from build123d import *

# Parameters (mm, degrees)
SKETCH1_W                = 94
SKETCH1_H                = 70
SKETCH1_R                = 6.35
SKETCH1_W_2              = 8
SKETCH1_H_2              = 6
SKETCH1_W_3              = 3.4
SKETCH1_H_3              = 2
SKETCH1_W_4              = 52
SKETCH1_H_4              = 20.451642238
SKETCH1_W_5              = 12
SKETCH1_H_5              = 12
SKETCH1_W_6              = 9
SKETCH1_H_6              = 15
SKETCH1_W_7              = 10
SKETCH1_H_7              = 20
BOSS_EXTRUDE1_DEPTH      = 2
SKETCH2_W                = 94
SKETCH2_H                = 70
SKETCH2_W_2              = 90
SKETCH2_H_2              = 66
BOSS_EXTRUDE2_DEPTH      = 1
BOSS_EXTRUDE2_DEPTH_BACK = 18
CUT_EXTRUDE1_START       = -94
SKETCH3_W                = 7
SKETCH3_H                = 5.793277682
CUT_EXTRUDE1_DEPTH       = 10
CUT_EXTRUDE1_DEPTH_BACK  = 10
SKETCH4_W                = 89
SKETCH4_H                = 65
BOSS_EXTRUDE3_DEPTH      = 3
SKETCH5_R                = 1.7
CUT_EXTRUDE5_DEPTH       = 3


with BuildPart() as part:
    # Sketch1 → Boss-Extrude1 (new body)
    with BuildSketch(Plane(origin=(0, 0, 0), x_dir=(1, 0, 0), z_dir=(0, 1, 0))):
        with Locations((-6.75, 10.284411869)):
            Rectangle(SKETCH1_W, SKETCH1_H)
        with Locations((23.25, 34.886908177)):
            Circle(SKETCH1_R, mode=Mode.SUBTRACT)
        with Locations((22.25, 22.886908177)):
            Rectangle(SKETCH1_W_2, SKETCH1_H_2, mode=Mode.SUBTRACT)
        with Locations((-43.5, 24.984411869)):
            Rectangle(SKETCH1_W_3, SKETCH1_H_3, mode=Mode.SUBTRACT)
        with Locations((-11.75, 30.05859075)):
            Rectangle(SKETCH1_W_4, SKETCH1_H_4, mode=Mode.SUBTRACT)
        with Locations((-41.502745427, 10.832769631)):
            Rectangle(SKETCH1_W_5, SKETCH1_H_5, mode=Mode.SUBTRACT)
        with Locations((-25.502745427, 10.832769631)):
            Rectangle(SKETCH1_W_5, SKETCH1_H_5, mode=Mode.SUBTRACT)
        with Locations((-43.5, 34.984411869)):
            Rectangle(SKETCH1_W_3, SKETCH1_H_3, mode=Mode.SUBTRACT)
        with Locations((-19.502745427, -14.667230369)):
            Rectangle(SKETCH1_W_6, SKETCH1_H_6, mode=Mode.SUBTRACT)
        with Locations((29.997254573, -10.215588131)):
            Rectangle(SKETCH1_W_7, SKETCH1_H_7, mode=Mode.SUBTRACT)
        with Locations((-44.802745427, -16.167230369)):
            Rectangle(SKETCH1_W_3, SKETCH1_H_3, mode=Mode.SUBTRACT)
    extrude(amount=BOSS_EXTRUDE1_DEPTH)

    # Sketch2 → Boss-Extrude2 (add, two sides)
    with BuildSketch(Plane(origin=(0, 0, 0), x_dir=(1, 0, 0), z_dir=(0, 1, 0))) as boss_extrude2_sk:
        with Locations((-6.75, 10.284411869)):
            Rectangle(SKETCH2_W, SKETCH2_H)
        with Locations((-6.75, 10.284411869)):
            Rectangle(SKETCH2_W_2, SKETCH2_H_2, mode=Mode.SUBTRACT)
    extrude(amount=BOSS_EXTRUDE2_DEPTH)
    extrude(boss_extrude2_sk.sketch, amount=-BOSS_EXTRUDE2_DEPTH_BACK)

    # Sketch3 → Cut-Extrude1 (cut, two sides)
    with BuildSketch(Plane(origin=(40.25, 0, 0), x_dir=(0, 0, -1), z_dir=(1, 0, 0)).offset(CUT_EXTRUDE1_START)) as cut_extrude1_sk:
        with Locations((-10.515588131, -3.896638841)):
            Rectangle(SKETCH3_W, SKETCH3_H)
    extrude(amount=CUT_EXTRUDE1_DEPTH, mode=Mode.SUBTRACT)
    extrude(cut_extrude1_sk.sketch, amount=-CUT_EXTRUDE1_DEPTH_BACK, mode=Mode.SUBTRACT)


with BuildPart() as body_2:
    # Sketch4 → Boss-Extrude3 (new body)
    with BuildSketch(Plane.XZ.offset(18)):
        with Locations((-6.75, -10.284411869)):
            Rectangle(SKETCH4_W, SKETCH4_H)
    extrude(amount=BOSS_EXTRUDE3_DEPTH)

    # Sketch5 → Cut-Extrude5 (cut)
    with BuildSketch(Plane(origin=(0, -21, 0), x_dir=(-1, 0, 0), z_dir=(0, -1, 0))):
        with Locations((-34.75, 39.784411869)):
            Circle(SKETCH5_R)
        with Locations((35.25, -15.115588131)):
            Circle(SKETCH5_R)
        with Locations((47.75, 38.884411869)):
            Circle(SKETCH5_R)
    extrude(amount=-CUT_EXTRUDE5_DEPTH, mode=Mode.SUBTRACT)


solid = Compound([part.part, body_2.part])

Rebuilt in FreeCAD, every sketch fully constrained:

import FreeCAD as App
import Part
import Sketcher
from FreeCAD import Vector
Q = App.Units.Quantity

doc = App.newDocument("Part")
params = doc.addObject("Spreadsheet::Sheet", "Params")
for row, (alias, value) in enumerate([
    ("sketch1_diameter", "12.7 mm"),
    ("sketch1_width", "94 mm"),
    ("sketch1_width2", "9 mm"),
    ("sketch1_width3", "10 mm"),
    ("sketch1_width4", "12 mm"),
    ("pad1_length", "2 mm"),
    ("sketch2_width", "94 mm"),
    ("sketch2_width2", "90 mm"),
    ("sketch2_height", "70 mm"),
    ("sketch2_height2", "66 mm"),
    ("pad2_length", "1 mm"),
    ("pad2_length2", "18 mm"),
    ("sketch3_height", "7 mm"),
    ("pocket1_length", "10 mm"),
    ("pocket1_length2", "10 mm"),
    ("sketch4_width", "89 mm"),
    ("sketch4_height", "65 mm"),
    ("pad3_length", "3 mm"),
    ("sketch5_diameter", "3.4 mm"),
    ("pocket2_length", "3 mm"),
], start=1):
    params.set(f"A{row}", alias)
    params.set(f"B{row}", "=" + value)
    params.setAlias(f"B{row}", alias)

body = doc.addObject("PartDesign::Body", "Body")

# Sketch on XZ plane
sketch1 = body.newObject("Sketcher::SketchObject", "Sketch")
sketch1.AttachmentSupport = (doc.getObject("XZ_Plane"), [""])
sketch1.MapMode = "FlatFace"
sketch1.addGeometry([
    Part.LineSegment(Vector(-53.8, -45.3, 0), Vector(-53.8, 24.7, 0)),  # 0
    Part.LineSegment(Vector(-53.8, 24.7, 0), Vector(40.2, 24.7, 0)),  # 1
    Part.LineSegment(Vector(40.2, 24.7, 0), Vector(40.2, -45.3, 0)),  # 2
    Part.LineSegment(Vector(40.2, -45.3, 0), Vector(-53.8, -45.3, 0)),  # 3
    Part.LineSegment(Vector(-43.1, 17.2, 0), Vector(-46.5, 17.2, 0)),  # 4
    Part.LineSegment(Vector(-46.5, 17.2, 0), Vector(-46.5, 15.2, 0)),  # 5
    Part.LineSegment(Vector(-46.5, 15.2, 0), Vector(-43.1, 15.2, 0)),  # 6
    Part.LineSegment(Vector(-43.1, 15.2, 0), Vector(-43.1, 17.2, 0)),  # 7
    Part.LineSegment(Vector(-15, 22.2, 0), Vector(-24, 22.2, 0)),  # 8
    Part.LineSegment(Vector(-24, 22.2, 0), Vector(-24, 7.2, 0)),  # 9
    Part.LineSegment(Vector(-24, 7.2, 0), Vector(-15, 7.2, 0)),  # 10
    Part.LineSegment(Vector(-15, 7.2, 0), Vector(-15, 22.2, 0)),  # 11
    Part.LineSegment(Vector(35, 20.2, 0), Vector(25, 20.2, 0)),  # 12
    Part.LineSegment(Vector(25, 20.2, 0), Vector(25, 0.2, 0)),  # 13
    Part.LineSegment(Vector(25, 0.2, 0), Vector(35, 0.2, 0)),  # 14
    Part.LineSegment(Vector(35, 0.2, 0), Vector(35, 20.2, 0)),  # 15
    Part.LineSegment(Vector(-35.5, -4.8, 0), Vector(-47.5, -4.8, 0)),  # 16
    Part.LineSegment(Vector(-47.5, -4.8, 0), Vector(-47.5, -16.8, 0)),  # 17
    Part.LineSegment(Vector(-47.5, -16.8, 0), Vector(-35.5, -16.8, 0)),  # 18
    Part.LineSegment(Vector(-35.5, -16.8, 0), Vector(-35.5, -4.8, 0)),  # 19
    Part.LineSegment(Vector(-41.8, -24, 0), Vector(-45.2, -24, 0)),  # 20
    Part.LineSegment(Vector(-45.2, -24, 0), Vector(-45.2, -26, 0)),  # 21
    Part.LineSegment(Vector(-45.2, -26, 0), Vector(-41.8, -26, 0)),  # 22
    Part.LineSegment(Vector(-41.8, -26, 0), Vector(-41.8, -24, 0)),  # 23
    Part.LineSegment(Vector(-19.5, -4.8, 0), Vector(-31.5, -4.8, 0)),  # 24
    Part.LineSegment(Vector(-31.5, -4.8, 0), Vector(-31.5, -16.8, 0)),  # 25
    Part.LineSegment(Vector(-31.5, -16.8, 0), Vector(-19.5, -16.8, 0)),  # 26
    Part.LineSegment(Vector(-19.5, -16.8, 0), Vector(-19.5, -4.8, 0)),  # 27
    Part.LineSegment(Vector(-41.8, -34, 0), Vector(-45.2, -34, 0)),  # 28
    Part.LineSegment(Vector(-45.2, -34, 0), Vector(-45.2, -36, 0)),  # 29
    Part.LineSegment(Vector(-45.2, -36, 0), Vector(-41.8, -36, 0)),  # 30
    Part.LineSegment(Vector(-41.8, -36, 0), Vector(-41.8, -34, 0)),  # 31
    Part.LineSegment(Vector(14.2, -19.8, 0), Vector(-37.8, -19.8, 0)),  # 32
    Part.LineSegment(Vector(-37.8, -19.8, 0), Vector(-37.8, -40.3, 0)),  # 33
    Part.LineSegment(Vector(-37.8, -40.3, 0), Vector(14.2, -40.3, 0)),  # 34
    Part.LineSegment(Vector(14.2, -40.3, 0), Vector(14.2, -19.8, 0)),  # 35
    Part.LineSegment(Vector(26.2, -19.9, 0), Vector(18.2, -19.9, 0)),  # 36
    Part.LineSegment(Vector(18.2, -19.9, 0), Vector(18.2, -25.9, 0)),  # 37
    Part.LineSegment(Vector(18.2, -25.9, 0), Vector(26.2, -25.9, 0)),  # 38
    Part.LineSegment(Vector(26.2, -25.9, 0), Vector(26.2, -19.9, 0)),  # 39
    Part.Circle(Vector(23.2, -34.9, 0), Vector(0, 0, 1), 6.3),  # 40
], False)
sketch1.addConstraint([
    Sketcher.Constraint("Coincident", 0, 2, 1, 1),
    Sketcher.Constraint("Coincident", 1, 2, 2, 1),
    Sketcher.Constraint("Coincident", 2, 2, 3, 1),
    Sketcher.Constraint("Coincident", 3, 2, 0, 1),
    Sketcher.Constraint("Coincident", 4, 2, 5, 1),
    Sketcher.Constraint("Coincident", 5, 2, 6, 1),
    Sketcher.Constraint("Coincident", 6, 2, 7, 1),
    Sketcher.Constraint("Coincident", 7, 2, 4, 1),
    Sketcher.Constraint("Coincident", 8, 2, 9, 1),
    Sketcher.Constraint("Coincident", 9, 2, 10, 1),
    Sketcher.Constraint("Coincident", 10, 2, 11, 1),
    Sketcher.Constraint("Coincident", 11, 2, 8, 1),
    Sketcher.Constraint("Coincident", 12, 2, 13, 1),
    Sketcher.Constraint("Coincident", 13, 2, 14, 1),
    Sketcher.Constraint("Coincident", 14, 2, 15, 1),
    Sketcher.Constraint("Coincident", 15, 2, 12, 1),
    Sketcher.Constraint("Coincident", 16, 2, 17, 1),
    Sketcher.Constraint("Coincident", 17, 2, 18, 1),
    Sketcher.Constraint("Coincident", 18, 2, 19, 1),
    Sketcher.Constraint("Coincident", 19, 2, 16, 1),
    Sketcher.Constraint("Coincident", 20, 2, 21, 1),
    Sketcher.Constraint("Coincident", 21, 2, 22, 1),
    Sketcher.Constraint("Coincident", 22, 2, 23, 1),
    Sketcher.Constraint("Coincident", 23, 2, 20, 1),
    Sketcher.Constraint("Coincident", 24, 2, 25, 1),
    Sketcher.Constraint("Coincident", 25, 2, 26, 1),
    Sketcher.Constraint("Coincident", 26, 2, 27, 1),
    Sketcher.Constraint("Coincident", 27, 2, 24, 1),
    Sketcher.Constraint("Coincident", 28, 2, 29, 1),
    Sketcher.Constraint("Coincident", 29, 2, 30, 1),
    Sketcher.Constraint("Coincident", 30, 2, 31, 1),
    Sketcher.Constraint("Coincident", 31, 2, 28, 1),
    Sketcher.Constraint("Coincident", 32, 2, 33, 1),
    Sketcher.Constraint("Coincident", 33, 2, 34, 1),
    Sketcher.Constraint("Coincident", 34, 2, 35, 1),
    Sketcher.Constraint("Coincident", 35, 2, 32, 1),
    Sketcher.Constraint("Coincident", 36, 2, 37, 1),
    Sketcher.Constraint("Coincident", 37, 2, 38, 1),
    Sketcher.Constraint("Coincident", 38, 2, 39, 1),
    Sketcher.Constraint("Coincident", 39, 2, 36, 1),
    Sketcher.Constraint("Vertical", 0),
    Sketcher.Constraint("Horizontal", 1),
    Sketcher.Constraint("Vertical", 2),
    Sketcher.Constraint("Horizontal", 3),
    Sketcher.Constraint("Horizontal", 4),
    Sketcher.Constraint("Vertical", 5),
    Sketcher.Constraint("Horizontal", 6),
    Sketcher.Constraint("Vertical", 7),
    Sketcher.Constraint("Horizontal", 8),
    Sketcher.Constraint("Vertical", 9),
    Sketcher.Constraint("Horizontal", 10),
    Sketcher.Constraint("Vertical", 11),
    Sketcher.Constraint("Horizontal", 12),
    Sketcher.Constraint("Vertical", 13),
    Sketcher.Constraint("Horizontal", 14),
    Sketcher.Constraint("Vertical", 15),
    Sketcher.Constraint("Horizontal", 16),
    Sketcher.Constraint("Vertical", 17),
    Sketcher.Constraint("Horizontal", 18),
    Sketcher.Constraint("Vertical", 19),
    Sketcher.Constraint("Horizontal", 20),
    Sketcher.Constraint("Vertical", 21),
    Sketcher.Constraint("Horizontal", 22),
    Sketcher.Constraint("Vertical", 23),
    Sketcher.Constraint("Horizontal", 24),
    Sketcher.Constraint("Vertical", 25),
    Sketcher.Constraint("Horizontal", 26),
    Sketcher.Constraint("Vertical", 27),
    Sketcher.Constraint("Horizontal", 28),
    Sketcher.Constraint("Vertical", 29),
    Sketcher.Constraint("Horizontal", 30),
    Sketcher.Constraint("Vertical", 31),
    Sketcher.Constraint("Horizontal", 32),
    Sketcher.Constraint("Vertical", 33),
    Sketcher.Constraint("Horizontal", 34),
    Sketcher.Constraint("Vertical", 35),
    Sketcher.Constraint("Horizontal", 36),
    Sketcher.Constraint("Vertical", 37),
    Sketcher.Constraint("Horizontal", 38),
    Sketcher.Constraint("Vertical", 39),
    Sketcher.Constraint("Horizontal", 19, 2, 24, 2),
    Sketcher.Constraint("Horizontal", 18, 2, 25, 2),
    Sketcher.Constraint("Vertical", 21, 2, 28, 2),
    Sketcher.Constraint("Vertical", 23, 2, 30, 2),
    Sketcher.Constraint("Equal", 6, 20),
    Sketcher.Constraint("Equal", 18, 24),
    Sketcher.Constraint("Equal", 26, 17),
    Sketcher.Constraint("Equal", 7, 21),
    Sketcher.Constraint("Equal", 23, 29),
    Sketcher.Constraint("Diameter", 40, Q("12.7 mm")),
    Sketcher.Constraint("DistanceX", 1, 1, 1, 2, Q("94 mm")),
    Sketcher.Constraint("DistanceX", 8, 2, 8, 1, Q("9 mm")),
    Sketcher.Constraint("DistanceX", 12, 2, 12, 1, Q("10 mm")),
    Sketcher.Constraint("DistanceX", 16, 2, 16, 1, Q("12 mm")),
    Sketcher.Constraint("DistanceX", 32, 2, 32, 1, Q("52 mm")),
    Sketcher.Constraint("DistanceX", 36, 2, 36, 1, Q("8 mm")),
    Sketcher.Constraint("DistanceY", 0, 1, 0, 2, Q("70 mm")),
    Sketcher.Constraint("DistanceY", 5, 2, 5, 1, Q("2 mm")),
    Sketcher.Constraint("DistanceY", 9, 2, 9, 1, Q("15 mm")),
    Sketcher.Constraint("DistanceY", 13, 2, 13, 1, Q("20 mm")),
    Sketcher.Constraint("DistanceY", 37, 2, 37, 1, Q("6 mm")),
    Sketcher.Constraint("DistanceX", 4, 2, 4, 1, Q("3.4 mm")),
    Sketcher.Constraint("DistanceX", 0, 2, 40, 3, Q("77 mm")),
    Sketcher.Constraint("DistanceY", 7, 2, 8, 2, Q("5 mm")),
    Sketcher.Constraint("DistanceX", 11, 2, 12, 2, Q("40 mm")),
    Sketcher.Constraint("DistanceX", 16, 2, 5, 2, Q("1 mm")),
    Sketcher.Constraint("DistanceY", 16, 2, 5, 2, Q("20 mm")),
    Sketcher.Constraint("DistanceX", 19, 2, 24, 2, Q("4 mm")),
    Sketcher.Constraint("DistanceY", 28, 2, 21, 2, Q("8 mm")),
    Sketcher.Constraint("DistanceY", 32, 2, 18, 2, Q("3 mm")),
    Sketcher.Constraint("DistanceX", 34, 2, 40, 3, Q("9 mm")),
    Sketcher.Constraint("DistanceY", 2, 2, 34, 2, Q("5 mm")),
    Sketcher.Constraint("DistanceX", 35, 2, 36, 2, Q("4 mm")),
    Sketcher.Constraint("DistanceY", 40, 3, 36, 2, Q("15 mm")),
    Sketcher.Constraint("DistanceX", 20, 2, -1, 1, Q("45.2 mm")),
    Sketcher.Constraint("DistanceX", 7, 2, 8, 2, Q("19.1 mm")),
    Sketcher.Constraint("DistanceY", 12, 2, 1, 2, Q("4.5 mm")),
    Sketcher.Constraint("DistanceY", 3, 2, 20, 2, Q("21.3 mm")),
    Sketcher.Constraint("DistanceX", -1, 1, 40, 3, Q("23.25 mm")),
    Sketcher.Constraint("DistanceY", 33, 2, 33, 1, Q("20.451642 mm")),
    Sketcher.Constraint("DistanceY", 40, 3, -1, 1, Q("34.886908 mm")),
    Sketcher.Constraint("DistanceY", -1, 1, 0, 2, Q("24.715588 mm")),
    Sketcher.Constraint("DistanceX", 4, 2, -1, 1, Q("46.502745 mm")),
])
sketch1.setExpression("Constraints[89]", "Params.sketch1_diameter")
sketch1.setExpression("Constraints[90]", "Params.sketch1_width")
sketch1.setExpression("Constraints[91]", "Params.sketch1_width2")
sketch1.setExpression("Constraints[92]", "Params.sketch1_width3")
sketch1.setExpression("Constraints[93]", "Params.sketch1_width4")
pad1 = body.newObject("PartDesign::Pad", "Pad")
pad1.Profile = sketch1
pad1.setExpression("Length", "Params.pad1_length")
pad1.Reversed = True

# Sketch on XZ plane
sketch2 = body.newObject("Sketcher::SketchObject", "Sketch001")
sketch2.AttachmentSupport = (doc.getObject("XZ_Plane"), [""])
sketch2.MapMode = "FlatFace"
sketch2.addGeometry([
    Part.LineSegment(Vector(-54, -45, 0), Vector(-54, 25, 0)),  # 0
    Part.LineSegment(Vector(-54, 25, 0), Vector(40, 25, 0)),  # 1
    Part.LineSegment(Vector(40, 25, 0), Vector(40, -45, 0)),  # 2
    Part.LineSegment(Vector(40, -45, 0), Vector(-54, -45, 0)),  # 3
    Part.LineSegment(Vector(38, 23, 0), Vector(-52, 23, 0)),  # 4
    Part.LineSegment(Vector(-52, 23, 0), Vector(-52, -43, 0)),  # 5
    Part.LineSegment(Vector(-52, -43, 0), Vector(38, -43, 0)),  # 6
    Part.LineSegment(Vector(38, -43, 0), Vector(38, 23, 0)),  # 7
], False)
sketch2.addConstraint([
    Sketcher.Constraint("Coincident", 0, 2, 1, 1),
    Sketcher.Constraint("Coincident", 1, 2, 2, 1),
    Sketcher.Constraint("Coincident", 2, 2, 3, 1),
    Sketcher.Constraint("Coincident", 3, 2, 0, 1),
    Sketcher.Constraint("Coincident", 4, 2, 5, 1),
    Sketcher.Constraint("Coincident", 5, 2, 6, 1),
    Sketcher.Constraint("Coincident", 6, 2, 7, 1),
    Sketcher.Constraint("Coincident", 7, 2, 4, 1),
    Sketcher.Constraint("Vertical", 0),
    Sketcher.Constraint("Horizontal", 1),
    Sketcher.Constraint("Vertical", 2),
    Sketcher.Constraint("Horizontal", 3),
    Sketcher.Constraint("Horizontal", 4),
    Sketcher.Constraint("Vertical", 5),
    Sketcher.Constraint("Horizontal", 6),
    Sketcher.Constraint("Vertical", 7),
    Sketcher.Constraint("DistanceX", 1, 1, 1, 2, Q("94 mm")),
    Sketcher.Constraint("DistanceX", 4, 2, 4, 1, Q("90 mm")),
    Sketcher.Constraint("DistanceY", 0, 1, 0, 2, Q("70 mm")),
    Sketcher.Constraint("DistanceY", 5, 2, 5, 1, Q("66 mm")),
    Sketcher.Constraint("DistanceX", 0, 2, 4, 2, Q("2 mm")),
    Sketcher.Constraint("DistanceY", 4, 2, 0, 2, Q("2 mm")),
    Sketcher.Constraint("DistanceX", 0, 2, -1, 1, Q("53.75 mm")),
    Sketcher.Constraint("DistanceY", -1, 1, 0, 2, Q("24.715588 mm")),
])
sketch2.setExpression("Constraints[16]", "Params.sketch2_width")
sketch2.setExpression("Constraints[17]", "Params.sketch2_width2")
sketch2.setExpression("Constraints[18]", "Params.sketch2_height")
sketch2.setExpression("Constraints[19]", "Params.sketch2_height2")
pad2 = body.newObject("PartDesign::Pad", "Pad001")
pad2.Profile = sketch2
pad2.Type = "TwoLengths"
pad2.setExpression("Length", "Params.pad2_length")
pad2.setExpression("Length2", "Params.pad2_length2")
pad2.Reversed = True

# Sketch on YZ plane
sketch3 = body.newObject("Sketcher::SketchObject", "Sketch002")
sketch3.AttachmentSupport = (doc.getObject("YZ_Plane"), [""])
sketch3.MapMode = "FlatFace"
sketch3.AttachmentOffset = App.Placement(Vector(0, 0, -53.75), App.Rotation())
sketch3.addGeometry([
    Part.LineSegment(Vector(-1, 14, 0), Vector(-7, 14, 0)),
    Part.LineSegment(Vector(-7, 14, 0), Vector(-7, 7, 0)),
    Part.LineSegment(Vector(-7, 7, 0), Vector(-1, 7, 0)),
    Part.LineSegment(Vector(-1, 7, 0), Vector(-1, 14, 0)),
], False)
sketch3.addConstraint([
    Sketcher.Constraint("Coincident", 0, 2, 1, 1),
    Sketcher.Constraint("Coincident", 1, 2, 2, 1),
    Sketcher.Constraint("Coincident", 2, 2, 3, 1),
    Sketcher.Constraint("Coincident", 3, 2, 0, 1),
    Sketcher.Constraint("Horizontal", 0),
    Sketcher.Constraint("Vertical", 1),
    Sketcher.Constraint("Horizontal", 2),
    Sketcher.Constraint("Vertical", 3),
    Sketcher.Constraint("DistanceY", 1, 2, 1, 1, Q("7 mm")),
    Sketcher.Constraint("DistanceX", 2, 2, -1, 1, Q("1 mm")),
    Sketcher.Constraint("DistanceX", 0, 2, 0, 1, Q("5.793278 mm")),
    Sketcher.Constraint("DistanceY", -1, 1, 0, 2, Q("14.015588 mm")),
])
sketch3.setExpression("Constraints[8]", "Params.sketch3_height")
pocket1 = body.newObject("PartDesign::Pocket", "Pocket")
pocket1.Profile = sketch3
pocket1.Type = "TwoLengths"
pocket1.setExpression("Length", "Params.pocket1_length")
pocket1.setExpression("Length2", "Params.pocket1_length2")
pocket1.Reversed = True
body2 = doc.addObject("PartDesign::Body", "Body001")

# Sketch on XZ plane
sketch4 = body2.newObject("Sketcher::SketchObject", "Sketch003")
sketch4.AttachmentSupport = (doc.getObject("XZ_Plane001"), [""])
sketch4.MapMode = "FlatFace"
sketch4.AttachmentOffset = App.Placement(Vector(0, 0, 18), App.Rotation())
sketch4.addGeometry([
    Part.LineSegment(Vector(-51, 22, 0), Vector(-51, -43, 0)),
    Part.LineSegment(Vector(-51, -43, 0), Vector(38, -43, 0)),
    Part.LineSegment(Vector(38, -43, 0), Vector(38, 22, 0)),
    Part.LineSegment(Vector(38, 22, 0), Vector(-51, 22, 0)),
], False)
sketch4.addConstraint([
    Sketcher.Constraint("Coincident", 0, 2, 1, 1),
    Sketcher.Constraint("Coincident", 1, 2, 2, 1),
    Sketcher.Constraint("Coincident", 2, 2, 3, 1),
    Sketcher.Constraint("Coincident", 3, 2, 0, 1),
    Sketcher.Constraint("Vertical", 0),
    Sketcher.Constraint("Horizontal", 1),
    Sketcher.Constraint("Vertical", 2),
    Sketcher.Constraint("Horizontal", 3),
    Sketcher.Constraint("DistanceX", 1, 1, 1, 2, Q("89 mm")),
    Sketcher.Constraint("DistanceY", 0, 2, 0, 1, Q("65 mm")),
    Sketcher.Constraint("DistanceX", 0, 2, -1, 1, Q("51.25 mm")),
    Sketcher.Constraint("DistanceY", 0, 2, -1, 1, Q("42.784412 mm")),
])
sketch4.setExpression("Constraints[8]", "Params.sketch4_width")
sketch4.setExpression("Constraints[9]", "Params.sketch4_height")
pad3 = body2.newObject("PartDesign::Pad", "Pad002")
pad3.Profile = sketch4
pad3.setExpression("Length", "Params.pad3_length")

# Sketch on XZ plane
sketch5 = body2.newObject("Sketcher::SketchObject", "Sketch004")
sketch5.AttachmentSupport = (doc.getObject("XZ_Plane001"), [""])
sketch5.MapMode = "FlatFace"
sketch5.AttachmentOffset = App.Placement(Vector(0, 0, 21), App.Rotation())
sketch5.addGeometry([
    Part.Circle(Vector(34.8, -39.8, 0), Vector(0, 0, 1), 1.7),
    Part.Circle(Vector(-35.2, 15.1, 0), Vector(0, 0, 1), 1.7),
    Part.Circle(Vector(-47.8, -38.9, 0), Vector(0, 0, 1), 1.7),
], False)
sketch5.addConstraint([
    Sketcher.Constraint("Equal", 0, 1),
    Sketcher.Constraint("Equal", 1, 2),
    Sketcher.Constraint("Diameter", 0, Q("3.4 mm")),
    Sketcher.Constraint("DistanceX", 1, 3, 0, 3, Q("70 mm")),
    Sketcher.Constraint("DistanceY", 2, 3, 1, 3, Q("54 mm")),
    Sketcher.Constraint("DistanceY", 0, 3, 1, 3, Q("54.9 mm")),
    Sketcher.Constraint("DistanceX", 2, 3, 1, 3, Q("12.5 mm")),
    Sketcher.Constraint("DistanceX", -1, 1, 0, 3, Q("34.75 mm")),
    Sketcher.Constraint("DistanceY", 0, 3, -1, 1, Q("39.784412 mm")),
])
sketch5.setExpression("Constraints[2]", "Params.sketch5_diameter")
pocket2 = body2.newObject("PartDesign::Pocket", "Pocket001")
pocket2.Profile = sketch5
pocket2.setExpression("Length", "Params.pocket2_length")

doc.recompute()
